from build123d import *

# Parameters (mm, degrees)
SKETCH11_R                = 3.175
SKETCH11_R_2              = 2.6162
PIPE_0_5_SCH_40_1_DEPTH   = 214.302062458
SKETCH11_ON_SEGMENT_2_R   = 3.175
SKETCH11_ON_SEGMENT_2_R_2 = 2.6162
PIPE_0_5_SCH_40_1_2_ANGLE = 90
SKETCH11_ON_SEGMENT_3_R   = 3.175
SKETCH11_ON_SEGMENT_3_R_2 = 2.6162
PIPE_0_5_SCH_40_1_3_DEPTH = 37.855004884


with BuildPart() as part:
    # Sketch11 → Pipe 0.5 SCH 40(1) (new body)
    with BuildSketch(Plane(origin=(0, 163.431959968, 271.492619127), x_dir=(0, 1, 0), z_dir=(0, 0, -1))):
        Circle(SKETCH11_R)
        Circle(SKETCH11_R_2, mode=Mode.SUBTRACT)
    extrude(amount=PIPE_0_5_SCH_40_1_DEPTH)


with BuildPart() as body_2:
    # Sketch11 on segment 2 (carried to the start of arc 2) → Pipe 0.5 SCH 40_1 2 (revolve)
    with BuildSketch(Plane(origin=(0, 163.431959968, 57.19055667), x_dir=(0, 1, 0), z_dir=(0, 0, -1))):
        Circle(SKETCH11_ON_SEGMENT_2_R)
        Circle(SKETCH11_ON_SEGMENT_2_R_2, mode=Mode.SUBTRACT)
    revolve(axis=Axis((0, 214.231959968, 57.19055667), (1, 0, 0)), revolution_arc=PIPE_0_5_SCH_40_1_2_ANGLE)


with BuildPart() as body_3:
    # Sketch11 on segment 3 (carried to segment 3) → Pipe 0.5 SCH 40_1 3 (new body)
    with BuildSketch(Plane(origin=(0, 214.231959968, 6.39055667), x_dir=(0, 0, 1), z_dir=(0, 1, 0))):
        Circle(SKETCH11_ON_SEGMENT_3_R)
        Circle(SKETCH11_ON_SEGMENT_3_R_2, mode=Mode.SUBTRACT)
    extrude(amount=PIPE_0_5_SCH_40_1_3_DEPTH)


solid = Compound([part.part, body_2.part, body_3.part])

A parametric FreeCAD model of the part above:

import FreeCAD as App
import Part
import Sketcher
Q = App.Units.Quantity

doc = App.newDocument("Part")
body = doc.addObject("PartDesign::Body", "Body")

# Sketch on XY plane
sketch1 = doc.addObject("Sketcher::SketchObject", "Sketch")
body.addObject(sketch1)
sketch1.AttachmentSupport = (doc.XY_Plane, [""])
sketch1.MapMode = "FlatFace"
sketch1.AttachmentOffset = App.Placement(App.Vector(0, 0, 271.492619), App.Rotation())
sketch1.addGeometry([
    Part.Circle(App.Vector(0, 163.4, 0), App.Vector(0, 0, 1), 3.2),
    Part.Circle(App.Vector(0, 163.4, 0), App.Vector(0, 0, 1), 2.6),
], False)
sketch1.addConstraint([
    Sketcher.Constraint("Coincident", 1, 3, 0, 3),
    Sketcher.Constraint("PointOnObject", 0, 3, -2),
    Sketcher.Constraint("Diameter", 0, Q("0.25 in")),
    Sketcher.Constraint("Diameter", 1, Q("0.206 in")),
    Sketcher.Constraint("DistanceY", -1, 1, 0, 3, 163.43196),
])
pad1 = doc.addObject("PartDesign::Pad", "Pad")
body.addObject(pad1)
pad1.Profile = sketch1
pad1.Length = 214.302062
pad1.Reversed = True
body2 = doc.addObject("PartDesign::Body", "Body001")

# Sketch on XY plane
sketch2 = doc.addObject("Sketcher::SketchObject", "Sketch001")
body2.addObject(sketch2)
sketch2.AttachmentSupport = (doc.getObject("XY_Plane001"), [""])
sketch2.MapMode = "FlatFace"
sketch2.AttachmentOffset = App.Placement(App.Vector(0, 0, 57.190557), App.Rotation())
sketch2.addGeometry([
    Part.Circle(App.Vector(0, 163.4, 0), App.Vector(0, 0, 1), 3.2),
    Part.Circle(App.Vector(0, 163.4, 0), App.Vector(0, 0, 1), 2.6),
], False)
sketch2.addGeometry(Part.LineSegment(App.Vector(0, 214.2, 0), App.Vector(10, 214.2, 0)), True)  # axis
sketch2.addConstraint([
    Sketcher.Constraint("Horizontal", 2),
    Sketcher.Constraint("Coincident", 1, 3, 0, 3),
    Sketcher.Constraint("PointOnObject", 0, 3, -2),
    Sketcher.Constraint("PointOnObject", 2, 1, -2),
    Sketcher.Constraint("Diameter", 0, Q("0.25 in")),
    Sketcher.Constraint("Diameter", 1, Q("0.206 in")),
    Sketcher.Constraint("DistanceY", 0, 3, 2, 1, Q("2 in")),
    Sketcher.Constraint("DistanceX", 2, 1, 2, 2, 10.0),
    Sketcher.Constraint("DistanceY", -1, 1, 0, 3, 163.43196),
])
revolution = doc.addObject("PartDesign::Revolution", "Revolution")
body2.addObject(revolution)
revolution.Profile = sketch2
revolution.ReferenceAxis = (sketch2, ["Axis0"])
revolution.Angle = 90
body3 = doc.addObject("PartDesign::Body", "Body002")

# Sketch on XZ plane
sketch3 = doc.addObject("Sketcher::SketchObject", "Sketch002")
body3.addObject(sketch3)
sketch3.AttachmentSupport = (doc.getObject("XZ_Plane002"), [""])
sketch3.MapMode = "FlatFace"
sketch3.AttachmentOffset = App.Placement(App.Vector(0, 0, -214.23196), App.Rotation())
sketch3.addGeometry([
    Part.Circle(App.Vector(0, 6.4, 0), App.Vector(0, 0, 1), 3.2),
    Part.Circle(App.Vector(0, 6.4, 0), App.Vector(0, 0, 1), 2.6),
], False)
sketch3.addConstraint([
    Sketcher.Constraint("Coincident", 1, 3, 0, 3),
    Sketcher.Constraint("PointOnObject", 0, 3, -2),
    Sketcher.Constraint("Diameter", 0, Q("0.25 in")),
    Sketcher.Constraint("Diameter", 1, Q("0.206 in")),
    Sketcher.Constraint("DistanceY", -1, 1, 0, 3, 6.390557),
])
pad2 = doc.addObject("PartDesign::Pad", "Pad001")
body3.addObject(pad2)
pad2.Profile = sketch3
pad2.Length = 37.855005
pad2.Reversed = True

doc.recompute()
